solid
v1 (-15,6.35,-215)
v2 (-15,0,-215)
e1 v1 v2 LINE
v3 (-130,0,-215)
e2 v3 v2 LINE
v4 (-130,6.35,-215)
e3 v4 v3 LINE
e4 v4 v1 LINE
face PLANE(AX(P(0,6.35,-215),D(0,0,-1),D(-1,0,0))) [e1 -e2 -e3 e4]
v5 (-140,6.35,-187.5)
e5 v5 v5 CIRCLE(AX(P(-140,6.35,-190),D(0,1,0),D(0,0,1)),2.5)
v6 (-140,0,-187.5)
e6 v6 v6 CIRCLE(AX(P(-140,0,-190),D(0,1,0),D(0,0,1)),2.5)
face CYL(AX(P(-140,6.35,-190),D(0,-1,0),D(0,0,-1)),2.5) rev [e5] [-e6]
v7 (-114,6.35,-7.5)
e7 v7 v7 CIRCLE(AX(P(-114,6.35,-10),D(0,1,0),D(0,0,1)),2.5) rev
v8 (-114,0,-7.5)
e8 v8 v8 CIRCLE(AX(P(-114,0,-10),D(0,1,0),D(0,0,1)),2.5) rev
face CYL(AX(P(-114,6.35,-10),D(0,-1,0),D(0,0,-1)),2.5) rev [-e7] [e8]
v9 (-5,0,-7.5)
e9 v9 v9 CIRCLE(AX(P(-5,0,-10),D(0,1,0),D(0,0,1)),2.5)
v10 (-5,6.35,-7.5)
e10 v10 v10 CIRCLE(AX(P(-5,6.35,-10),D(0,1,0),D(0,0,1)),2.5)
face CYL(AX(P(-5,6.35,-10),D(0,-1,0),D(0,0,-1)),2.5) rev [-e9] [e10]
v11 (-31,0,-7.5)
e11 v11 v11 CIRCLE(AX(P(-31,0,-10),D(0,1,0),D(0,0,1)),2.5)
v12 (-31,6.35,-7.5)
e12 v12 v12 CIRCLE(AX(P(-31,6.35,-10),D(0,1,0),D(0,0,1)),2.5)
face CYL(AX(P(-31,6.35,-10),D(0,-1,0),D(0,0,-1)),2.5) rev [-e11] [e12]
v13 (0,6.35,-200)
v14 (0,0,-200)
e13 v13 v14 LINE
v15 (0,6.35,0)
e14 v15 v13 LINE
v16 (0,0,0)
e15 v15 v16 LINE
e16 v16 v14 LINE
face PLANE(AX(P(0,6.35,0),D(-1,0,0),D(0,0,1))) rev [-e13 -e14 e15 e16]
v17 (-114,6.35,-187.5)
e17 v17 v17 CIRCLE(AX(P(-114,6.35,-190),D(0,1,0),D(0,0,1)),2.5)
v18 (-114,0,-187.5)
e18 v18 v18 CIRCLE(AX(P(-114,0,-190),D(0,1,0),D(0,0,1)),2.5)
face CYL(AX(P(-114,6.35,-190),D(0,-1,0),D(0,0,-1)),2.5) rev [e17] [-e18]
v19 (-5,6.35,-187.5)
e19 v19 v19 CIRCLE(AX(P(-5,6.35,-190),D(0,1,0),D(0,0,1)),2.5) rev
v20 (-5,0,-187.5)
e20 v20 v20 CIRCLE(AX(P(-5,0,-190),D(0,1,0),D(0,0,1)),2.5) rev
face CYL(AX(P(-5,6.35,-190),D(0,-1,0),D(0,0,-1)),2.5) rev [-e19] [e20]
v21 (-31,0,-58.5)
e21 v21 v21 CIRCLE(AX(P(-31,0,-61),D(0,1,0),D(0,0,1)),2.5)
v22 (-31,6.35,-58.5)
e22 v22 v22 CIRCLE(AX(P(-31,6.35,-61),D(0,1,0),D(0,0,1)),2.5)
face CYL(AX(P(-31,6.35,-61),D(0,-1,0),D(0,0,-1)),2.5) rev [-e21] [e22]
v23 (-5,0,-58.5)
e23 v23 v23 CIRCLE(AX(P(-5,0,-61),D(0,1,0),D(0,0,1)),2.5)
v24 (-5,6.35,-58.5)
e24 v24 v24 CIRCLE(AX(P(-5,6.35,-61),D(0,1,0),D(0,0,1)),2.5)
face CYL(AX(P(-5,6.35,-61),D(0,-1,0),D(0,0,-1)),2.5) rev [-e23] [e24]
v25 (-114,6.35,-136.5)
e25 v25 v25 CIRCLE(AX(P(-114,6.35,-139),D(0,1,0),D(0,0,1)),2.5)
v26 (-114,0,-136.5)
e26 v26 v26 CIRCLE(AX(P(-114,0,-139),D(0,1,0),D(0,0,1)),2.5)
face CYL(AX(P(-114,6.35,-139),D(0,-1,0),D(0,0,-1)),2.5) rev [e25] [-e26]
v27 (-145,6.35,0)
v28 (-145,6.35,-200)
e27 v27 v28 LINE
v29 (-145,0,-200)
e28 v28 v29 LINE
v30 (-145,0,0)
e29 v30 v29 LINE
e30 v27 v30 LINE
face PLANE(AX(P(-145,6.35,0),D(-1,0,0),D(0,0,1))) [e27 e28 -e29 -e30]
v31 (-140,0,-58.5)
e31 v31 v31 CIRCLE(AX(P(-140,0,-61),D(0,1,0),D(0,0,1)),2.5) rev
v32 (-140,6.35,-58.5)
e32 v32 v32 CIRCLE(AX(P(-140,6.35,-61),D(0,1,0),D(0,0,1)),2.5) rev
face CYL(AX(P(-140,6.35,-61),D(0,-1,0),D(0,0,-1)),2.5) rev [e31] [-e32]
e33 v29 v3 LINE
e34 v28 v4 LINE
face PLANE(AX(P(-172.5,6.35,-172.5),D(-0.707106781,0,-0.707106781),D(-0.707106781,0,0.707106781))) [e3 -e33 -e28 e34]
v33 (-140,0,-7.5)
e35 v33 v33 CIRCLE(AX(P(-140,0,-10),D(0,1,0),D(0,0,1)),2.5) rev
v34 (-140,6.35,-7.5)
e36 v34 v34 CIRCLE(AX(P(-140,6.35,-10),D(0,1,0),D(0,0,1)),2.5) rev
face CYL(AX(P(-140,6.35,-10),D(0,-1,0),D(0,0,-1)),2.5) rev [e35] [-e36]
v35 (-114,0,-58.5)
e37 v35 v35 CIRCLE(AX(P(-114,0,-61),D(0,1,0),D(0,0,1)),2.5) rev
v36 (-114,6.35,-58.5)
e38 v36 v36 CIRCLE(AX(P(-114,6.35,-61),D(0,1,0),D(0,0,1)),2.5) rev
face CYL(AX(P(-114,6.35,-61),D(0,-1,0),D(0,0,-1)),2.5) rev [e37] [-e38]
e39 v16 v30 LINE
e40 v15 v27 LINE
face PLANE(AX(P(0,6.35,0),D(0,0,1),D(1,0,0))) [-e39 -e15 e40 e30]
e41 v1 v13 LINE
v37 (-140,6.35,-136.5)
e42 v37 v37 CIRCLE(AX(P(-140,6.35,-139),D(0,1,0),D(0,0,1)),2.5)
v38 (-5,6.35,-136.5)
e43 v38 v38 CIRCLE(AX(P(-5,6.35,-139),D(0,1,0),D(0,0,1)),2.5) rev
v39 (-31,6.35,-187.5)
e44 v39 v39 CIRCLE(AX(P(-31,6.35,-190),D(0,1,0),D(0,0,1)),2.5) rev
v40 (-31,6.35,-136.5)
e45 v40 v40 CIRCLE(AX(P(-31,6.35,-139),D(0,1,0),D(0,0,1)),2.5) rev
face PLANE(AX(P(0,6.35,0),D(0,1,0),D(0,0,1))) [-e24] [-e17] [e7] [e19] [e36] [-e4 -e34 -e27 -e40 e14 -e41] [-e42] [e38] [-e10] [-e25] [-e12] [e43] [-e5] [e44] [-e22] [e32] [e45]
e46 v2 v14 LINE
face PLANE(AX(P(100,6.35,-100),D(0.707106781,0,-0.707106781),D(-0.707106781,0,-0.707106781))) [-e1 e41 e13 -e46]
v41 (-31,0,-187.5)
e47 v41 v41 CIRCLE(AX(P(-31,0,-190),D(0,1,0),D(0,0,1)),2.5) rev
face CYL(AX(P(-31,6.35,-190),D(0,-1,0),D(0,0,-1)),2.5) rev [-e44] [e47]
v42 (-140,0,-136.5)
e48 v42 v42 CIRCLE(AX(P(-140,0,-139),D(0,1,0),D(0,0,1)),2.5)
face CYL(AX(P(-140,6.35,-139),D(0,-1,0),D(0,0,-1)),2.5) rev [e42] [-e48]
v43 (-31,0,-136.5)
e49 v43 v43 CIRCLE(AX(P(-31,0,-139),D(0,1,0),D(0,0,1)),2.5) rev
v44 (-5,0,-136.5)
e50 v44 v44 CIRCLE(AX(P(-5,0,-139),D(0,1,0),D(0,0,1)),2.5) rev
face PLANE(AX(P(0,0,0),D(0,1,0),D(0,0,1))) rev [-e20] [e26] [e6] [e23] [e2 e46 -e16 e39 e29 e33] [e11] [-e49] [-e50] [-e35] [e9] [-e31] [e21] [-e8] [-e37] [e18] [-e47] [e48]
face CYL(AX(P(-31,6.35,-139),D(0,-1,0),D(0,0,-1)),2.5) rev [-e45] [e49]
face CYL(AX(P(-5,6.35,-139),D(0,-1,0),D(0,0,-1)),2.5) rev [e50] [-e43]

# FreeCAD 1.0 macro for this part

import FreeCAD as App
import Part
import Sketcher

V = App.Vector
Q = App.Units.Quantity

doc = App.newDocument("Part")
params = doc.addObject("Spreadsheet::Sheet", "Params")
for row, (alias, value) in enumerate([
    ("sketch1_diameter", "5 mm"),
    ("sketch1_width", "145 mm"),
    ("sketch1_width2", "115 mm"),
    ("sketch1_height", "200 mm"),
    ("pad1_length", "6.35 mm"),
], start=1):
    params.set(f"A{row}", alias)
    params.set(f"B{row}", "=" + value)
    params.setAlias(f"B{row}", alias)

body = doc.addObject("PartDesign::Body", "Body")

# Sketch on XZ plane
sketch1 = body.newObject("Sketcher::SketchObject", "Sketch")
sketch1.AttachmentSupport = (doc.getObject("XZ_Plane"), [""])
sketch1.MapMode = "FlatFace"
sketch1.addGeometry([
    Part.LineSegment(V(-130, -215, 0), V(-145, -200, 0)),  # 0
    Part.LineSegment(V(-145, -200, 0), V(-145, 0, 0)),  # 1
    Part.LineSegment(V(-145, 0, 0), V(0, 0, 0)),  # 2
    Part.LineSegment(V(0, 0, 0), V(0, -200, 0)),  # 3
    Part.LineSegment(V(0, -200, 0), V(-15, -215, 0)),  # 4
    Part.LineSegment(V(-15, -215, 0), V(-130, -215, 0)),  # 5
    Part.Circle(V(-5, -10, 0), V(0, 0, 1), 2.5),  # 6
    Part.Circle(V(-31, -10, 0), V(0, 0, 1), 2.5),  # 7
    Part.Circle(V(-5, -61, 0), V(0, 0, 1), 2.5),  # 8
    Part.Circle(V(-31, -61, 0), V(0, 0, 1), 2.5),  # 9
    Part.Circle(V(-114, -10, 0), V(0, 0, 1), 2.5),  # 10
    Part.Circle(V(-140, -10, 0), V(0, 0, 1), 2.5),  # 11
    Part.Circle(V(-114, -61, 0), V(0, 0, 1), 2.5),  # 12
    Part.Circle(V(-140, -61, 0), V(0, 0, 1), 2.5),  # 13
    Part.Circle(V(-5, -139, 0), V(0, 0, 1), 2.5),  # 14
    Part.Circle(V(-31, -139, 0), V(0, 0, 1), 2.5),  # 15
    Part.Circle(V(-5, -190, 0), V(0, 0, 1), 2.5),  # 16
    Part.Circle(V(-31, -190, 0), V(0, 0, 1), 2.5),  # 17
    Part.Circle(V(-114, -139, 0), V(0, 0, 1), 2.5),  # 18
    Part.Circle(V(-140, -139, 0), V(0, 0, 1), 2.5),  # 19
    Part.Circle(V(-114, -190, 0), V(0, 0, 1), 2.5),  # 20
    Part.Circle(V(-140, -190, 0), V(0, 0, 1), 2.5),  # 21
], False)
sketch1.addConstraint([
    Sketcher.Constraint("Coincident", 0, 2, 1, 1),
    Sketcher.Constraint("Coincident", 1, 2, 2, 1),
    Sketcher.Constraint("Coincident", 2, 2, 3, 1),
    Sketcher.Constraint("Coincident", 3, 2, 4, 1),
    Sketcher.Constraint("Coincident", 4, 2, 5, 1),
    Sketcher.Constraint("Coincident", 5, 2, 0, 1),
    Sketcher.Constraint("Vertical", 1),
    Sketcher.Constraint("Horizontal", 2),
    Sketcher.Constraint("Vertical", 3),
    Sketcher.Constraint("Horizontal", 5),
    Sketcher.Constraint("Coincident", 2, 2, -1, 1),
    Sketcher.Constraint("Equal", 6, 7),
    Sketcher.Constraint("Equal", 7, 8),
    Sketcher.Constraint("Equal", 8, 9),
    Sketcher.Constraint("Equal", 9, 10),
    Sketcher.Constraint("Equal", 10, 11),
    Sketcher.Constraint("Equal", 11, 12),
    Sketcher.Constraint("Equal", 12, 13),
    Sketcher.Constraint("Equal", 13, 14),
    Sketcher.Constraint("Equal", 14, 15),
    Sketcher.Constraint("Equal", 15, 16),
    Sketcher.Constraint("Equal", 16, 17),
    Sketcher.Constraint("Equal", 17, 18),
    Sketcher.Constraint("Equal", 18, 19),
    Sketcher.Constraint("Equal", 19, 20),
    Sketcher.Constraint("Equal", 20, 21),
    Sketcher.Constraint("Perpendicular", 0, 4),
    Sketcher.Constraint("Horizontal", 6, 3, 7, 3),
    Sketcher.Constraint("Horizontal", 8, 3, 9, 3),
    Sketcher.Constraint("Horizontal", 7, 3, 10, 3),
    Sketcher.Constraint("Horizontal", 10, 3, 11, 3),
    Sketcher.Constraint("Horizontal", 9, 3, 12, 3),
    Sketcher.Constraint("Horizontal", 12, 3, 13, 3),
    Sketcher.Constraint("Horizontal", 14, 3, 15, 3),
    Sketcher.Constraint("Horizontal", 16, 3, 17, 3),
    Sketcher.Constraint("Horizontal", 15, 3, 18, 3),
    Sketcher.Constraint("Horizontal", 18, 3, 19, 3),
    Sketcher.Constraint("Horizontal", 17, 3, 20, 3),
    Sketcher.Constraint("Horizontal", 20, 3, 21, 3),
    Sketcher.Constraint("Horizontal", 0, 2, 3, 2),
    Sketcher.Constraint("Vertical", 6, 3, 8, 3),
    Sketcher.Constraint("Vertical", 7, 3, 9, 3),
    Sketcher.Constraint("Vertical", 10, 3, 12, 3),
    Sketcher.Constraint("Vertical", 11, 3, 13, 3),
    Sketcher.Constraint("Vertical", 8, 3, 14, 3),
    Sketcher.Constraint("Vertical", 9, 3, 15, 3),
    Sketcher.Constraint("Vertical", 14, 3, 16, 3),
    Sketcher.Constraint("Vertical", 15, 3, 17, 3),
    Sketcher.Constraint("Vertical", 12, 3, 18, 3),
    Sketcher.Constraint("Vertical", 13, 3, 19, 3),
    Sketcher.Constraint("Vertical", 18, 3, 20, 3),
    Sketcher.Constraint("Vertical", 19, 3, 21, 3),
    Sketcher.Constraint("Equal", 0, 4),
    Sketcher.Constraint("Diameter", 6, Q("5 mm")),
    Sketcher.Constraint("DistanceX", 2, 1, 2, 2, Q("145 mm")),
    Sketcher.Constraint("DistanceX", 5, 2, 5, 1, Q("115 mm")),
    Sketcher.Constraint("DistanceY", 1, 1, 1, 2, Q("200 mm")),
    Sketcher.Constraint("DistanceX", 6, 3, -1, 1, Q("5 mm")),
    Sketcher.Constraint("DistanceY", 6, 3, -1, 1, Q("10 mm")),
    Sketcher.Constraint("DistanceX", 7, 3, -1, 1, Q("31 mm")),
    Sketcher.Constraint("DistanceY", 8, 3, -1, 1, Q("61 mm")),
    Sketcher.Constraint("DistanceX", 10, 3, -1, 1, Q("114 mm")),
    Sketcher.Constraint("DistanceX", 11, 3, -1, 1, Q("140 mm")),
    Sketcher.Constraint("DistanceY", 14, 3, -1, 1, Q("139 mm")),
    Sketcher.Constraint("DistanceY", 16, 3, -1, 1, Q("190 mm")),
])
sketch1.setExpression("Constraints[53]", "Params.sketch1_diameter")
sketch1.setExpression("Constraints[54]", "Params.sketch1_width")
sketch1.setExpression("Constraints[55]", "Params.sketch1_width2")
sketch1.setExpression("Constraints[56]", "Params.sketch1_height")
pad1 = body.newObject("PartDesign::Pad", "Pad")
pad1.Profile = sketch1
pad1.setExpression("Length", "Params.pad1_length")
pad1.Reversed = True

doc.recompute()
